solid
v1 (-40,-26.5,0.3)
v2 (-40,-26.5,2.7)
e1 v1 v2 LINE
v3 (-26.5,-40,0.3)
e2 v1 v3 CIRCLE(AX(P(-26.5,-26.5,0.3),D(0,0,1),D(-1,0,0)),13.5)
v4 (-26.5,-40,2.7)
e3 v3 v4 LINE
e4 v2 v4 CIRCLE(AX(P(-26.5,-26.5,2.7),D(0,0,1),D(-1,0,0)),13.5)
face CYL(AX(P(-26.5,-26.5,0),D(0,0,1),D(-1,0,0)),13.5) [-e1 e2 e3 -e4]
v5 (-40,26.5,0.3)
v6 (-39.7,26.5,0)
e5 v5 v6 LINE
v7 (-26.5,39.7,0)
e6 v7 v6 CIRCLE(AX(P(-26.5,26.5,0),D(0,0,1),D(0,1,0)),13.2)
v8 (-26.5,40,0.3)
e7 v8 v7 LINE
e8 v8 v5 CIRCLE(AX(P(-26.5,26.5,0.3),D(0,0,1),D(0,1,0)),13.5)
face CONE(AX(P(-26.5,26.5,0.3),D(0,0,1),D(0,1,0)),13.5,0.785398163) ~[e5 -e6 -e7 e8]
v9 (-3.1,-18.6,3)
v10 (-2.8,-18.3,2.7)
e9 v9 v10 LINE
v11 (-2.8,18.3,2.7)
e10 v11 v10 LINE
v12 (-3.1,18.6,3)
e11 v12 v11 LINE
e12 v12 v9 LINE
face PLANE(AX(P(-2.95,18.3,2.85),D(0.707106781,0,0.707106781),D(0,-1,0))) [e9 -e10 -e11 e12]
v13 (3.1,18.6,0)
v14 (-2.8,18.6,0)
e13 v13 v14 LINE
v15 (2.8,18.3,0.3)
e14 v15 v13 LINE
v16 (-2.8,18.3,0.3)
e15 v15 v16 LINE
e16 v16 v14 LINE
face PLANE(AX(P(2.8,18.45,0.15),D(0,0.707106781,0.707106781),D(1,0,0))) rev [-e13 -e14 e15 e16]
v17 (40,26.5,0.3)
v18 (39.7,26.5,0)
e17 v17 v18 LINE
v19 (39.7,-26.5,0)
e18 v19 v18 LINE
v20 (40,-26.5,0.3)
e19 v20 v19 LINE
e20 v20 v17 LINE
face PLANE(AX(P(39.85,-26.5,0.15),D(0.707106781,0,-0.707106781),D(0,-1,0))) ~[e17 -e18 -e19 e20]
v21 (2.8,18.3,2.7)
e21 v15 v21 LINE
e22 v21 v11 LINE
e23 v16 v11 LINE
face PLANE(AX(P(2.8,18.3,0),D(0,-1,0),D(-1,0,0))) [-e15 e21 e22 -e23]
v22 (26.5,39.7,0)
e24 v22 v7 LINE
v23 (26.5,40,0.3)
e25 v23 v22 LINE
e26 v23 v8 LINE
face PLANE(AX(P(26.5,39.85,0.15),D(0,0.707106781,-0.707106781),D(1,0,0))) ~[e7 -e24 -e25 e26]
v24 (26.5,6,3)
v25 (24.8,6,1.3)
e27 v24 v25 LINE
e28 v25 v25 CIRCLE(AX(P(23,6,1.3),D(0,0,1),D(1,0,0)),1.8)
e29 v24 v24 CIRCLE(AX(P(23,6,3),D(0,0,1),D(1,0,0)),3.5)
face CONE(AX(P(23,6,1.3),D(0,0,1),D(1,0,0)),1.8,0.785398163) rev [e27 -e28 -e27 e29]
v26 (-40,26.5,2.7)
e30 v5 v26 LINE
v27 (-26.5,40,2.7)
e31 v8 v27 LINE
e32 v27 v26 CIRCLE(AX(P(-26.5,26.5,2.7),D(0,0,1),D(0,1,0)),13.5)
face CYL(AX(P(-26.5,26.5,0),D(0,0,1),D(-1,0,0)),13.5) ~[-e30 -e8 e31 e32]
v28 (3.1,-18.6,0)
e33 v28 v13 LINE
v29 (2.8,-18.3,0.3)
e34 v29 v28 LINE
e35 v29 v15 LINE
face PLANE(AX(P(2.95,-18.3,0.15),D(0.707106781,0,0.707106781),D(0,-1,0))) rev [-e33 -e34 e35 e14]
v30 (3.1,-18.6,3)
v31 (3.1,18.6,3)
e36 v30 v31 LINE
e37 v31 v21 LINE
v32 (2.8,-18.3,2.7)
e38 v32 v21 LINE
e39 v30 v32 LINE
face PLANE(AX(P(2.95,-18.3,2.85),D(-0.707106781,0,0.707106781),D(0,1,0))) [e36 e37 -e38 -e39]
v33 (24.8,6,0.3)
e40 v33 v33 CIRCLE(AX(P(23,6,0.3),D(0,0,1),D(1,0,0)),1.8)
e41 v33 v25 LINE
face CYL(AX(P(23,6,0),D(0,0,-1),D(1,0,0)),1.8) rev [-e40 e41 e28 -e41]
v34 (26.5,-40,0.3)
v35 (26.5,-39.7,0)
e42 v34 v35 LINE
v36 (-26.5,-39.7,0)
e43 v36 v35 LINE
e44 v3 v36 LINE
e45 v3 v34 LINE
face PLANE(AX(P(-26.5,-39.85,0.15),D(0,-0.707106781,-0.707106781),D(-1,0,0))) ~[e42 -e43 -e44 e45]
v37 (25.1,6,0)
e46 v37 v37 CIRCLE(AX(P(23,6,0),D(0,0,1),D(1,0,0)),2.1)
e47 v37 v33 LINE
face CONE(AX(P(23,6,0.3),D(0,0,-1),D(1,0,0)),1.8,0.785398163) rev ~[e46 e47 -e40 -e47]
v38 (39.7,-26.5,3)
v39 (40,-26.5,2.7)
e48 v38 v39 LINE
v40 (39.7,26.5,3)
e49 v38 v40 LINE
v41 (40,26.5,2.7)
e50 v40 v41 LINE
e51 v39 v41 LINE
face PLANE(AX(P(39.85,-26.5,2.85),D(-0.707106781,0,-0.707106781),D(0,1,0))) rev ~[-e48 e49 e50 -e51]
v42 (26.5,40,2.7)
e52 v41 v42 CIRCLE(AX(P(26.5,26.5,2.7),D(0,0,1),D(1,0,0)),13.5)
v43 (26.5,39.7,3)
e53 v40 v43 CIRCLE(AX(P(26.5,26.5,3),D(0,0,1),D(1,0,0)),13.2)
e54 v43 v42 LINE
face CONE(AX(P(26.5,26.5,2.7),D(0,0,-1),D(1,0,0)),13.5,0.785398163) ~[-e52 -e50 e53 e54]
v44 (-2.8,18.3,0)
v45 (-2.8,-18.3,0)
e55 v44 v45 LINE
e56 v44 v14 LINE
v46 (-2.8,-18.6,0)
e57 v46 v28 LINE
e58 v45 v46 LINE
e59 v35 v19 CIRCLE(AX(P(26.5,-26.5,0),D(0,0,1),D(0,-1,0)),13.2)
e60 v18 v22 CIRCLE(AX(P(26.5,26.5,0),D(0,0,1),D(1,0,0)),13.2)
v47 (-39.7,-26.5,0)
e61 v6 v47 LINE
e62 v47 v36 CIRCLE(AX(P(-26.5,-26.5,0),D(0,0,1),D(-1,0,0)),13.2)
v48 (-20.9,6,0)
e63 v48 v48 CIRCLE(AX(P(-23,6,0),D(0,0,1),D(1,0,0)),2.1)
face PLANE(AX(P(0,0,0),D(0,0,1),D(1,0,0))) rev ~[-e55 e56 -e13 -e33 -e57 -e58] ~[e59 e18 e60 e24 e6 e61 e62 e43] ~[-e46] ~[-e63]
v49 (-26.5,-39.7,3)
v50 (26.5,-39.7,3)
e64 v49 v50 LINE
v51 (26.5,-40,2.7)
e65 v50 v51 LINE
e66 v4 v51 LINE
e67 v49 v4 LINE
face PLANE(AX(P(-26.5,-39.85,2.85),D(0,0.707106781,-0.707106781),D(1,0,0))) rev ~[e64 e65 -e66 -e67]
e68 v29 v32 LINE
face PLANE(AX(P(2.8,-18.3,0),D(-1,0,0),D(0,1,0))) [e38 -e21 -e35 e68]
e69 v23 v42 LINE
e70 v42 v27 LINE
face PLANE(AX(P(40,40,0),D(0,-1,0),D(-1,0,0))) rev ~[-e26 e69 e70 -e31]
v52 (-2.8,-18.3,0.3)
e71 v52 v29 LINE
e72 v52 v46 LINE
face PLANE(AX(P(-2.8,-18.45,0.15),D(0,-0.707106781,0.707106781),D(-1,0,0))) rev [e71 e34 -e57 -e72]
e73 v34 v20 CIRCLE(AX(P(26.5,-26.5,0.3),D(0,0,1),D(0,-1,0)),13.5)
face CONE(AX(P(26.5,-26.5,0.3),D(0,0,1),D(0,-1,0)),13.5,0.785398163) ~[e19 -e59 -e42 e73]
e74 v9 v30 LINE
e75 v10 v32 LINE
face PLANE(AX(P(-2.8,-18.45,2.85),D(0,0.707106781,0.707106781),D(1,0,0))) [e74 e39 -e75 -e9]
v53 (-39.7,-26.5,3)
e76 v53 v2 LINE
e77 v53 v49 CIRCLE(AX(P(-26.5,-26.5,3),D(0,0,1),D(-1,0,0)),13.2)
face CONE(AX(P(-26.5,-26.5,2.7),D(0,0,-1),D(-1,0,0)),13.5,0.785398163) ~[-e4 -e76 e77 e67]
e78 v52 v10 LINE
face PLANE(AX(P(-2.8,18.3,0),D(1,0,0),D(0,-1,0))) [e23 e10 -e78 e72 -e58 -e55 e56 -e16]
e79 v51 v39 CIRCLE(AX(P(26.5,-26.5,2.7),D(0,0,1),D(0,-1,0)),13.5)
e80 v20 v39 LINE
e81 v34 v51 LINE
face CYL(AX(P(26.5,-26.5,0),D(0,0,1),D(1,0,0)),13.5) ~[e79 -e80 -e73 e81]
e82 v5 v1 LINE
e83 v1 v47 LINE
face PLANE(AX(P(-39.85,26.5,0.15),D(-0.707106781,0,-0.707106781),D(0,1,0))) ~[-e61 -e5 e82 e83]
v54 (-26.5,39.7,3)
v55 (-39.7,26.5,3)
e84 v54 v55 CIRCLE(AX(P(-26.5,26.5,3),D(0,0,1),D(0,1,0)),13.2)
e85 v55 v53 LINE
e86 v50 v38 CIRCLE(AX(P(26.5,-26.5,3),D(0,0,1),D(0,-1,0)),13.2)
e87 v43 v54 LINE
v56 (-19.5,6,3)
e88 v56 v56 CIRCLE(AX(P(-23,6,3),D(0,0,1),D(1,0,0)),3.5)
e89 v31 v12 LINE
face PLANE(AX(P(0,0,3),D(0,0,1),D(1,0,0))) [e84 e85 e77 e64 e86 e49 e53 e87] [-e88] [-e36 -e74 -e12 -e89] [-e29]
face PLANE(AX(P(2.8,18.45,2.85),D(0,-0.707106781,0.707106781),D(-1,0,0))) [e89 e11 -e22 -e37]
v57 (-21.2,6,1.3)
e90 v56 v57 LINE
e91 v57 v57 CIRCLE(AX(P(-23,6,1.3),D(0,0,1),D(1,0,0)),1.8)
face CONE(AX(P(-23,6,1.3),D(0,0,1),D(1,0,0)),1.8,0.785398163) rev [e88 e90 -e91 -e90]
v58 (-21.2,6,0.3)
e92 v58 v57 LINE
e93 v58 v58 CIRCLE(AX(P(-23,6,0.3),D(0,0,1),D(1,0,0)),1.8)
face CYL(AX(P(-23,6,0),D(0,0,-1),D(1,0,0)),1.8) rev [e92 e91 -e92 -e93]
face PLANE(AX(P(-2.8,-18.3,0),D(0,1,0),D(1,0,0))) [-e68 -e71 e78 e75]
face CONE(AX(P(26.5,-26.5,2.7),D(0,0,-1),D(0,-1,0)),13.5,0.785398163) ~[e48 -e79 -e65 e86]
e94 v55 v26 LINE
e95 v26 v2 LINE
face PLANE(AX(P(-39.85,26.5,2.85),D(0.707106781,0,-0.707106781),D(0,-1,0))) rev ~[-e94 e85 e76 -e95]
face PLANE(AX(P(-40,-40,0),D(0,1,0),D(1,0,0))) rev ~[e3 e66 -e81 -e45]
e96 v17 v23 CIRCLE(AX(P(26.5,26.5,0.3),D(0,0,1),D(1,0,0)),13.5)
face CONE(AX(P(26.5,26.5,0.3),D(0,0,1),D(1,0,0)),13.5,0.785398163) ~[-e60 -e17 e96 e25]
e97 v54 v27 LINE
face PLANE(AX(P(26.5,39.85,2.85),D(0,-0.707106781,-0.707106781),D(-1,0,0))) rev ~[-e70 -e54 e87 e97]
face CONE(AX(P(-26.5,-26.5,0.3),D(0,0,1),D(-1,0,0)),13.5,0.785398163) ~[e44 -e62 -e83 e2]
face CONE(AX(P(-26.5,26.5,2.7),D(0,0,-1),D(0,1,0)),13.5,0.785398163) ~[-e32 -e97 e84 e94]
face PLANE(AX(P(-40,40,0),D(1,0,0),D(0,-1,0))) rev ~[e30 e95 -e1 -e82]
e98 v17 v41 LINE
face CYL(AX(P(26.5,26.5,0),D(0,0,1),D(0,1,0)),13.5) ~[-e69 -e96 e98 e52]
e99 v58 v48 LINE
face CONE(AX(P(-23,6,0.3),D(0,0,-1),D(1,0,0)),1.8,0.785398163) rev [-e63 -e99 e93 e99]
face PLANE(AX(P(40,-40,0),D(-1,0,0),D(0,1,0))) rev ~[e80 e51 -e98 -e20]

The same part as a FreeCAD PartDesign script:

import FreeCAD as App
import Part
import Sketcher


def edges_at(feature, points):
    """Names of the edges that pass closest to the given points."""
    edges = feature.Shape.Edges
    near = lambda p: min(range(len(edges)), key=lambda i: edges[i].distToShape(Part.Vertex(*p))[0])
    return sorted({f"Edge{near(p) + 1}" for p in points})


def add_polygon(sketch, points):
    """Adds a closed chain of lines whose ends are joined by coincident constraints."""
    first, n = sketch.GeometryCount, len(points)
    for a, b in zip(points, points[1:] + points[:1]):
        sketch.addGeometry(Part.LineSegment(App.Vector(*a, 0), App.Vector(*b, 0)), False)
    for i in range(n):
        sketch.addConstraint(Sketcher.Constraint("Coincident", first + i, 2, first + (i + 1) % n, 1))

doc = App.newDocument("Part")
body = doc.addObject("PartDesign::Body", "Body")

sketch1 = body.newObject("Sketcher::SketchObject", "Sketch")
sketch1.AttachmentSupport = (doc.getObject("XY_Plane"), [""])
sketch1.MapMode = "FlatFace"
add_polygon(sketch1, [(-40, 40), (-40, -40), (40, -40), (40, 40)])
sketch1.addGeometry(Part.Circle(App.Vector(-23, 6, 0), App.Vector(0, 0, 1), 1.8), False)
add_polygon(sketch1, [(2.8, -18.3), (-2.8, -18.3), (-2.8, 18.3), (2.8, 18.3)])
sketch1.addGeometry(Part.Circle(App.Vector(23, 6, 0), App.Vector(0, 0, 1), 1.8), False)
sketch1.addConstraint([
    Sketcher.Constraint("Vertical", 0),
    Sketcher.Constraint("Horizontal", 1),
    Sketcher.Constraint("Vertical", 2),
    Sketcher.Constraint("Horizontal", 3),
    Sketcher.Constraint("Horizontal", 5),
    Sketcher.Constraint("Vertical", 6),
    Sketcher.Constraint("Horizontal", 7),
    Sketcher.Constraint("Vertical", 8),
    Sketcher.Constraint("Equal", 4, 9),
    Sketcher.Constraint("Symmetric", 0, 2, 2, 2, -1, 1),
    Sketcher.Constraint("Symmetric", 5, 2, 7, 2, -1, 1),
    Sketcher.Constraint("Symmetric", 4, 3, 9, 3, -2),
    Sketcher.Constraint("Equal", 3, 0),
    Sketcher.Constraint("Diameter", 4, 3.6),
    Sketcher.Constraint("DistanceX", 1, 1, 1, 2, 80.0),
    Sketcher.Constraint("DistanceX", 5, 2, 5, 1, 5.6),
    Sketcher.Constraint("DistanceY", 6, 1, 6, 2, 36.6),
    Sketcher.Constraint("DistanceX", 4, 3, -1, 1, 23.0),
    Sketcher.Constraint("DistanceY", 4, 3, 6, 2, 12.3),
])
pad1 = body.newObject("PartDesign::Pad", "Pad")
pad1.Profile = sketch1
pad1.Length = 3
doc.recompute()

fillet = body.newObject("PartDesign::Fillet", "Fillet")
fillet.Base = (pad1, edges_at(pad1, [
    (40, 40, 1.5),
    (40, -40, 1.5),
    (-40, -40, 1.5),
    (-40, 40, 1.5),
]))
fillet.Radius = 13.5
doc.recompute()

chamfer = body.newObject("PartDesign::Chamfer", "Chamfer")
chamfer.Base = (fillet, edges_at(fillet, [(-24.8, 6, 3), (21.2, 6, 3)]))
chamfer.Size = 1.7
doc.recompute()

chamfer2 = body.newObject("PartDesign::Chamfer", "Chamfer001")
chamfer2.Base = (chamfer, edges_at(chamfer, [
    (-40, 0, 0),
    (-36.046, -36.046, 0),
    (0, -40, 0),
    (36.046, -36.046, 0),
    (40, 0, 0),
    (36.046, 36.046, 0),
    (0, 40, 0),
    (-36.046, 36.046, 0),
    (-40, 0, 3),
    (-36.046, -36.046, 3),
    (0, -40, 3),
    (36.046, -36.046, 3),
    (40, 0, 3),
    (36.046, 36.046, 3),
    (0, 40, 3),
    (-36.046, 36.046, 3),
    (-2.8, 0, 3),
    (2.8, 0, 3),
    (0, 18.3, 3),
    (2.8, 0, 0),
    (0, -18.3, 3),
    (0, 18.3, 0),
    (0, -18.3, 0),
    (-24.8, 6, 0),
    (21.2, 6, 0),
]))
chamfer2.Size = 0.3

doc.recompute()
